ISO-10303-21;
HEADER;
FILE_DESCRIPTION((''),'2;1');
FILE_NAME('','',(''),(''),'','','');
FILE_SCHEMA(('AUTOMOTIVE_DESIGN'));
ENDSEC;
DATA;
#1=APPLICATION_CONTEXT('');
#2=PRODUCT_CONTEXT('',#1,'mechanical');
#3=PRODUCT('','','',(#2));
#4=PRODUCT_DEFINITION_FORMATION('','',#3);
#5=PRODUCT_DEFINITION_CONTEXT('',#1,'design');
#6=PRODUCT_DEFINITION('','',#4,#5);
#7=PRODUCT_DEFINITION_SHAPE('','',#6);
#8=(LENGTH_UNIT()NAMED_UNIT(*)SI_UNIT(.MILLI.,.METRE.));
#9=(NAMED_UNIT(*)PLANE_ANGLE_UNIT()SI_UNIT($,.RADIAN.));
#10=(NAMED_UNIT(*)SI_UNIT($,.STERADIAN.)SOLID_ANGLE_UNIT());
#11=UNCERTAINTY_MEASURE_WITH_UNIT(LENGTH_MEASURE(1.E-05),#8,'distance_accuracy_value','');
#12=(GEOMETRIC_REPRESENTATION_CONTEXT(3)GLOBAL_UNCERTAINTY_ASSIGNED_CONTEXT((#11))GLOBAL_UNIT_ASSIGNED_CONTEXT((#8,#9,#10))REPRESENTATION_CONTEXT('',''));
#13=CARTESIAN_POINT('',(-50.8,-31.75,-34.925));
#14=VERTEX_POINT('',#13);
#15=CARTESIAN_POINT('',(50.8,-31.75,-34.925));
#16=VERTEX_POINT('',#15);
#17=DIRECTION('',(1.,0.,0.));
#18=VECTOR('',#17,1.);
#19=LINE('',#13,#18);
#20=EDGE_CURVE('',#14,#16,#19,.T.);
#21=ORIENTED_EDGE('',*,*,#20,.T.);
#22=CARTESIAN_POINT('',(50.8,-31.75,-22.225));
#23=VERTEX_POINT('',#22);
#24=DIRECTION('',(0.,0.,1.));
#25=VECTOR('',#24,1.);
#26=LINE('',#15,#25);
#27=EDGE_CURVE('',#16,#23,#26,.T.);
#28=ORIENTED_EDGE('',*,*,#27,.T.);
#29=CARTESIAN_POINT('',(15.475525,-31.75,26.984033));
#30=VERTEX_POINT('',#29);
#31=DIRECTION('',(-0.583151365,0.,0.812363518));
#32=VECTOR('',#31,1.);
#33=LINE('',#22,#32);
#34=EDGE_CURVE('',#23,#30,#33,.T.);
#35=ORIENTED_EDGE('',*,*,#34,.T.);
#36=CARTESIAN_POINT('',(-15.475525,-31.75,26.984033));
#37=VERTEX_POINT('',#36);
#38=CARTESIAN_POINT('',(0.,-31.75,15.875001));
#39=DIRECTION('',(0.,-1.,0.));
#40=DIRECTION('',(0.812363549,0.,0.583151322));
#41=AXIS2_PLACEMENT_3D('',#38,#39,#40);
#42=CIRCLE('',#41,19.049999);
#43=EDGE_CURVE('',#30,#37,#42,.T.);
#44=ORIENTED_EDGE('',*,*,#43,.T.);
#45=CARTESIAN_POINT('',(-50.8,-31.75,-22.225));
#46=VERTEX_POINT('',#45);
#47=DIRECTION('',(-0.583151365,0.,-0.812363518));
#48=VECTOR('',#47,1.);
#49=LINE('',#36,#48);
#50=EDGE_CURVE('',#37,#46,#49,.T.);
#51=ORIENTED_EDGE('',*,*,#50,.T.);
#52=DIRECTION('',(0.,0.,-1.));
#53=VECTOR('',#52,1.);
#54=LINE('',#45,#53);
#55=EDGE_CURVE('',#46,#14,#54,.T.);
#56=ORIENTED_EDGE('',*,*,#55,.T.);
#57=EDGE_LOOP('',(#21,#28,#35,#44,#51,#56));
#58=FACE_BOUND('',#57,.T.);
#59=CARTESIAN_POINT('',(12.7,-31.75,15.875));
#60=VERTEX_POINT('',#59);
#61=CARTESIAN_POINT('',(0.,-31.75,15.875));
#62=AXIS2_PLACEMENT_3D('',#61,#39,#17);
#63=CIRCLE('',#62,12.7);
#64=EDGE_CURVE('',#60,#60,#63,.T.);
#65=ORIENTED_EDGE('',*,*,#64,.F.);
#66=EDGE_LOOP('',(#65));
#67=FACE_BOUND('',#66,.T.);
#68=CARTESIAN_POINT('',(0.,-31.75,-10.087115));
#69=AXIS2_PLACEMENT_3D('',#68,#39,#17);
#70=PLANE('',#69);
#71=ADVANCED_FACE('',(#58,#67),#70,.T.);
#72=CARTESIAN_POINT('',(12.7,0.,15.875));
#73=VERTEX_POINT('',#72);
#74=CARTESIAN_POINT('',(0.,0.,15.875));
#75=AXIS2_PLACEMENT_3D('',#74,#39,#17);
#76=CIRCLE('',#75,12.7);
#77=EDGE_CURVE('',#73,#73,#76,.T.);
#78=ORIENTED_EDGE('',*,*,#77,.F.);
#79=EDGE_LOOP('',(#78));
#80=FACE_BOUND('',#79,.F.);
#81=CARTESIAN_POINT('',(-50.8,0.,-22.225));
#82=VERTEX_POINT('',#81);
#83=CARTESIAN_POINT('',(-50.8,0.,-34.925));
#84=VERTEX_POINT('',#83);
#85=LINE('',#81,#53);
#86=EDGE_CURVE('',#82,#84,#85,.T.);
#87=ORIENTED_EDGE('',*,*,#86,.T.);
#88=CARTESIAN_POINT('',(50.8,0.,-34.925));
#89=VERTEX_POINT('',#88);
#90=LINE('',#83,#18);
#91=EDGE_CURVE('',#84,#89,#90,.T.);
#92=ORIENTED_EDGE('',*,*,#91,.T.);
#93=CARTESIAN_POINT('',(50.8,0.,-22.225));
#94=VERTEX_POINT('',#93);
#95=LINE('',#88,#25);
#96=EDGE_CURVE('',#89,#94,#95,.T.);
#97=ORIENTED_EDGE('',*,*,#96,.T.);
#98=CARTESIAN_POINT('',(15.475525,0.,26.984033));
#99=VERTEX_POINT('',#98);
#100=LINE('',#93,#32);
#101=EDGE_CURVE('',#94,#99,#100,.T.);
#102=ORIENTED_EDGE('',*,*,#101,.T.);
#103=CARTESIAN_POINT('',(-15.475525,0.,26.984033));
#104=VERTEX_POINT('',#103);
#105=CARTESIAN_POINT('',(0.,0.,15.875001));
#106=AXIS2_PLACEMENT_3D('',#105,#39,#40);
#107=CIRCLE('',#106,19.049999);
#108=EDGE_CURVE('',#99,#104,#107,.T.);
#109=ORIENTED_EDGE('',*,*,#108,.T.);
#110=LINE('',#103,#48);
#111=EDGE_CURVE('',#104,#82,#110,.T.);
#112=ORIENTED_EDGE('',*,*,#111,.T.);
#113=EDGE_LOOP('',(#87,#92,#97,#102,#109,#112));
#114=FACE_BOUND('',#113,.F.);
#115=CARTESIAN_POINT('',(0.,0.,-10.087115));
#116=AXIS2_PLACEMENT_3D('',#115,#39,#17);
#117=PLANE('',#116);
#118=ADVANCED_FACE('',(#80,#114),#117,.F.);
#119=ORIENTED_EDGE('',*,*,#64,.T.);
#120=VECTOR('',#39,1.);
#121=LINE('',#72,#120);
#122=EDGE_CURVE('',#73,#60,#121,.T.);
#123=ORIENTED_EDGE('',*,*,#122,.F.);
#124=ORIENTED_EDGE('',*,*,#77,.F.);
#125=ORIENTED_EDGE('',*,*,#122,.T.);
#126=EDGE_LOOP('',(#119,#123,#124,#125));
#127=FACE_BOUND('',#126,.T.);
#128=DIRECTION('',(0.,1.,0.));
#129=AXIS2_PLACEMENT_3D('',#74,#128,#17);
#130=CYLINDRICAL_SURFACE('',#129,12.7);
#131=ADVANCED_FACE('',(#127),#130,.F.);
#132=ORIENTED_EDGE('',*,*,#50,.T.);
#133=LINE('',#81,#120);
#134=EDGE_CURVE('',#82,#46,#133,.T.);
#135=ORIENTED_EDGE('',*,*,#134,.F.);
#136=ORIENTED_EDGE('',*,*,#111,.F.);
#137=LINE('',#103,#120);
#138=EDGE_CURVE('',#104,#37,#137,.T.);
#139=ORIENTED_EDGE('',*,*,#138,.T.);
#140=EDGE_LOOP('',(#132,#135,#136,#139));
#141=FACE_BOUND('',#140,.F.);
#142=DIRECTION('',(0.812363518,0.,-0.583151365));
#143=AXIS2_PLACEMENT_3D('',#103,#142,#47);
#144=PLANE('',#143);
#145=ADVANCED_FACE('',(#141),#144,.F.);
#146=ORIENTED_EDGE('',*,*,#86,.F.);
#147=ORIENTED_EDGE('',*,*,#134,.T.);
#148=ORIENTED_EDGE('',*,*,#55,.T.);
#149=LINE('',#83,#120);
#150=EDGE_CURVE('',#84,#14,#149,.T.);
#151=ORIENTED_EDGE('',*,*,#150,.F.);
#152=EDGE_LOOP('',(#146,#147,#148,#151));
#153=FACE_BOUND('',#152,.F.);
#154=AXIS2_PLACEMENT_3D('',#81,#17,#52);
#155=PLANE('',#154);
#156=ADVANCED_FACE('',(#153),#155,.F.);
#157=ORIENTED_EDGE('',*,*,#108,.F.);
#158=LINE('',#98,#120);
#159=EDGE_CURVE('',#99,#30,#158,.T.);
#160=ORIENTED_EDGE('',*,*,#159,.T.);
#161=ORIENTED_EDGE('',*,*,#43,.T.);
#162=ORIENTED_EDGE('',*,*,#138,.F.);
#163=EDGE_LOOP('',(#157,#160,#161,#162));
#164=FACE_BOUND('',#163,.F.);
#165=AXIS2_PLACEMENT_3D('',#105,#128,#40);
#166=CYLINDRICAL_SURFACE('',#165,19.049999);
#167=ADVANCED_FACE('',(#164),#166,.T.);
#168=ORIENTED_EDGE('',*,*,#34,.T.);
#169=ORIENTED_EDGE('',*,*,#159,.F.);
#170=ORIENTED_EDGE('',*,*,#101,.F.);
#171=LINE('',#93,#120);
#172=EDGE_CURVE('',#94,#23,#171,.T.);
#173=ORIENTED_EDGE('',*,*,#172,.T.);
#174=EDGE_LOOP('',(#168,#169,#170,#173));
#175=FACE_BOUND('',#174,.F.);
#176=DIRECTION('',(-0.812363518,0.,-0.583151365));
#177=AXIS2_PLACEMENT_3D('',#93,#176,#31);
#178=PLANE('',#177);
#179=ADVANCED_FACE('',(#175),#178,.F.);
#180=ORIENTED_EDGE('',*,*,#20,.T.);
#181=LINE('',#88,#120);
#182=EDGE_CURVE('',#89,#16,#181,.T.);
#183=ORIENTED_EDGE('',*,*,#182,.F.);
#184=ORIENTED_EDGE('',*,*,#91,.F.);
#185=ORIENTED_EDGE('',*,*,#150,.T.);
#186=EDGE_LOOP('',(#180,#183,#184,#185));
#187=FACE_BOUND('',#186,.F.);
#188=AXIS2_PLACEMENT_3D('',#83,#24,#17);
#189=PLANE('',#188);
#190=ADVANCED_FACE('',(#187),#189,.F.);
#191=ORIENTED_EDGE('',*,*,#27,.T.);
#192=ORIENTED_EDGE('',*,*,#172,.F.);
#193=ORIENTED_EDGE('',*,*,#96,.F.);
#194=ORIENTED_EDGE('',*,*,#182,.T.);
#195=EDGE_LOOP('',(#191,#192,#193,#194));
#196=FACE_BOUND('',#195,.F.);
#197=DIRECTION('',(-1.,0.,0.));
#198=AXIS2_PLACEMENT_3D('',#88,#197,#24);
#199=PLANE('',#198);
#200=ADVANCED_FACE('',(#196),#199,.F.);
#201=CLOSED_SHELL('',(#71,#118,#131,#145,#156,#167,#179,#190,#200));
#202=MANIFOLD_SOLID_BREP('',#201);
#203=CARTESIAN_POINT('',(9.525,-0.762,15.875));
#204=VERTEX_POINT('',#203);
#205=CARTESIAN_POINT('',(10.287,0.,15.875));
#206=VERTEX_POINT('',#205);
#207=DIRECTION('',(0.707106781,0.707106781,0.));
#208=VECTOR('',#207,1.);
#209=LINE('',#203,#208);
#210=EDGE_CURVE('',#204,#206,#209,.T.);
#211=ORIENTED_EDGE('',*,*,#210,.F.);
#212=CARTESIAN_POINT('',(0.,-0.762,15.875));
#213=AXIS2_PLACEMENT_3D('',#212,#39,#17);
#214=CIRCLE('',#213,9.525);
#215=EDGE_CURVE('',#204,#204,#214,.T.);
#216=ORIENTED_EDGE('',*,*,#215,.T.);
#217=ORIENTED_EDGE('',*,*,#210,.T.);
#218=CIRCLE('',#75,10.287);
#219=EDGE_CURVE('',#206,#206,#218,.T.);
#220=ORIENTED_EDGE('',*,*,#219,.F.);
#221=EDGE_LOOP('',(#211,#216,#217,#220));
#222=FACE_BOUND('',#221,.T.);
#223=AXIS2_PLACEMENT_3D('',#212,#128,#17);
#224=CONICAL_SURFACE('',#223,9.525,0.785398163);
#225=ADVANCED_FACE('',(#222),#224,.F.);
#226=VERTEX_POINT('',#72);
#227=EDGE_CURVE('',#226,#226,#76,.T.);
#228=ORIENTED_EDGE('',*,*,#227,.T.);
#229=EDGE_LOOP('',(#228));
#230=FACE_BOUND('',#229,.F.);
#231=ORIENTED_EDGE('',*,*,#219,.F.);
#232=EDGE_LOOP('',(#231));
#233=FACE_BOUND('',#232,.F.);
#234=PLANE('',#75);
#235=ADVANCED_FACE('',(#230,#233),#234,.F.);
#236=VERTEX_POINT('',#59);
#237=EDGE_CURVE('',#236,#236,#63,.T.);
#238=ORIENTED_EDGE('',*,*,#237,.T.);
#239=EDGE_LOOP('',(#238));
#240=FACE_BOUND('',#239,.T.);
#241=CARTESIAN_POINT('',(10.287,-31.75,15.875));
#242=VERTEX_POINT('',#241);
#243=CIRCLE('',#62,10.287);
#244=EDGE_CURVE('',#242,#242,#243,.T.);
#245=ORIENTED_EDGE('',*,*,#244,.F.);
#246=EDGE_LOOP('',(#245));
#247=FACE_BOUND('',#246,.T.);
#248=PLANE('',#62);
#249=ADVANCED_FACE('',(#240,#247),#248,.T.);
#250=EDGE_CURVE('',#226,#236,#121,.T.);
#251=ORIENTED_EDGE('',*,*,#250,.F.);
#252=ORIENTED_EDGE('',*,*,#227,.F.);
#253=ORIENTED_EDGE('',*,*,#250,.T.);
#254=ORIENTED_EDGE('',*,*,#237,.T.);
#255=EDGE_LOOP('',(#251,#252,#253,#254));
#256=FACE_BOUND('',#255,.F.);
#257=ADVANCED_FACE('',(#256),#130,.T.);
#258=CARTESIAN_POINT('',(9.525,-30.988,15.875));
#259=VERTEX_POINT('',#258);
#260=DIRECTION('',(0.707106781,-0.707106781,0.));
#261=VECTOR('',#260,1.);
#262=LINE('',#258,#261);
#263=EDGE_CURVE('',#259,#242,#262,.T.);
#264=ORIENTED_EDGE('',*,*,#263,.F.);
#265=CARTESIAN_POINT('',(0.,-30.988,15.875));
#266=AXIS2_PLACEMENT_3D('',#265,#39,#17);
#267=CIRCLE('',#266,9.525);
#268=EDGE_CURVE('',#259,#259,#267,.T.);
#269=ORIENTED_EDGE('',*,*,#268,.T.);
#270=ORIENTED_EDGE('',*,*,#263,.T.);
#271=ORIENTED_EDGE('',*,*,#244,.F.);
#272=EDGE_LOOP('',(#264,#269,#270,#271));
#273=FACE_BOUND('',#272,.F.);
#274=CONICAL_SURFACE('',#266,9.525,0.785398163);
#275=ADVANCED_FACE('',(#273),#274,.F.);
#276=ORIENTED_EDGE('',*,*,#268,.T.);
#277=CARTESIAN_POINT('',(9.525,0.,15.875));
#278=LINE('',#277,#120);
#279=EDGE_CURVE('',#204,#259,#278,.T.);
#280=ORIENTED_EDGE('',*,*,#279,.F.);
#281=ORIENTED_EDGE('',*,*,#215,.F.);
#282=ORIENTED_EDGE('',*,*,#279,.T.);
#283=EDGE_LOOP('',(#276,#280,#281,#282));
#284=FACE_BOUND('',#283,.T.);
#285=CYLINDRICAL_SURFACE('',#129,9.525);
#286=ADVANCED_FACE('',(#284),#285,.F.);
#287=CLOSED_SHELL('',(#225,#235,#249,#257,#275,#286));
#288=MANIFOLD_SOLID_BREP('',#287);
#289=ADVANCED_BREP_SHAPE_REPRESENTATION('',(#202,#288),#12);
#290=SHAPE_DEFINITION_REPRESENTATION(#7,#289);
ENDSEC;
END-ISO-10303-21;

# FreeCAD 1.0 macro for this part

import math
import FreeCAD as App
import Part
import Sketcher

V = App.Vector
Q = App.Units.Quantity


def edges_at(feature, points):
    """Names of the edges that pass closest to the given points."""
    edges = feature.Shape.Edges
    near = lambda p: min(range(len(edges)), key=lambda i: edges[i].distToShape(Part.Vertex(*p))[0])
    return sorted({f"Edge{near(p) + 1}" for p in points})

doc = App.newDocument("Part")
body = doc.addObject("PartDesign::Body", "Body")

sketch1 = body.newObject("Sketcher::SketchObject", "Sketch")
sketch1.AttachmentSupport = (doc.getObject("XZ_Plane"), [""])
sketch1.MapMode = "FlatFace"
sketch1.addGeometry([
    Part.LineSegment(V(-50.8, -22.225, 0), V(-50.8, -34.925, 0)),
    Part.LineSegment(V(-50.8, -34.925, 0), V(50.8, -34.925, 0)),
    Part.LineSegment(V(50.8, -34.925, 0), V(50.8, -22.225, 0)),
    Part.LineSegment(V(50.8, -22.225, 0), V(15.475525, 26.984033, 0)),
    Part.ArcOfCircle(Part.Circle(V(0, 15.875001, 0), V(0, 0, 1), 19.049999), math.radians(35.672496), math.radians(144.327504)),
    Part.LineSegment(V(-15.475525, 26.984033, 0), V(-50.8, -22.225, 0)),
    Part.Circle(V(0, 15.875, 0), V(0, 0, 1), 12.7),
], False)
sketch1.addConstraint([
    Sketcher.Constraint("Coincident", 0, 2, 1, 1),
    Sketcher.Constraint("Coincident", 1, 2, 2, 1),
    Sketcher.Constraint("Coincident", 2, 2, 3, 1),
    Sketcher.Constraint("Tangent", 3, 2, 4, 1),
    Sketcher.Constraint("Tangent", 4, 2, 5, 1),
    Sketcher.Constraint("Coincident", 5, 2, 0, 1),
    Sketcher.Constraint("Vertical", 0),
    Sketcher.Constraint("Horizontal", 1),
    Sketcher.Constraint("Vertical", 2),
    Sketcher.Constraint("Coincident", 6, 3, 4, 3),
    Sketcher.Constraint("Symmetric", 3, 2, 4, 2, -2),
    Sketcher.Constraint("Horizontal", 2, 2, 5, 2),
    Sketcher.Constraint("Diameter", 6, Q("1 in")),
    Sketcher.Constraint("DistanceX", 1, 1, 1, 2, Q("4 in")),
    Sketcher.Constraint("Radius", 4, Q("0.75 in")),
    Sketcher.Constraint("DistanceY", 0, 2, 0, 1, Q("0.5 in")),
    Sketcher.Constraint("DistanceY", 0, 2, 6, 3, Q("2 in")),
    Sketcher.Constraint("DistanceY", -1, 1, 4, 3, Q("0.625 in")),
])
pad1 = body.newObject("PartDesign::Pad", "Pad")
pad1.Profile = sketch1
pad1.Length = Q("1.25 in")
body2 = doc.addObject("PartDesign::Body", "Body001")

sketch2 = body2.newObject("Sketcher::SketchObject", "Sketch001")
sketch2.AttachmentSupport = (doc.getObject("XZ_Plane001"), [""])
sketch2.MapMode = "FlatFace"
sketch2.addGeometry([
    Part.Circle(V(0, 15.875, 0), V(0, 0, 1), 12.7),
    Part.Circle(V(0, 15.875, 0), V(0, 0, 1), 9.525),
], False)
sketch2.addConstraint([
    Sketcher.Constraint("Coincident", 1, 3, 0, 3),
    Sketcher.Constraint("PointOnObject", 0, 3, -2),
    Sketcher.Constraint("Diameter", 0, Q("1 in")),
    Sketcher.Constraint("Diameter", 1, Q("0.75 in")),
    Sketcher.Constraint("DistanceY", -1, 1, 0, 3, Q("0.625 in")),
])
pad2 = body2.newObject("PartDesign::Pad", "Pad001")
pad2.Profile = sketch2
pad2.Length = Q("1.25 in")
doc.recompute()

chamfer = body2.newObject("PartDesign::Chamfer", "Chamfer")
chamfer.Base = (pad2, edges_at(pad2, [(-9.525, -31.75, 15.875), (-9.525, 0, 15.875)]))
chamfer.Size = Q("0.03 in")

doc.recompute()
